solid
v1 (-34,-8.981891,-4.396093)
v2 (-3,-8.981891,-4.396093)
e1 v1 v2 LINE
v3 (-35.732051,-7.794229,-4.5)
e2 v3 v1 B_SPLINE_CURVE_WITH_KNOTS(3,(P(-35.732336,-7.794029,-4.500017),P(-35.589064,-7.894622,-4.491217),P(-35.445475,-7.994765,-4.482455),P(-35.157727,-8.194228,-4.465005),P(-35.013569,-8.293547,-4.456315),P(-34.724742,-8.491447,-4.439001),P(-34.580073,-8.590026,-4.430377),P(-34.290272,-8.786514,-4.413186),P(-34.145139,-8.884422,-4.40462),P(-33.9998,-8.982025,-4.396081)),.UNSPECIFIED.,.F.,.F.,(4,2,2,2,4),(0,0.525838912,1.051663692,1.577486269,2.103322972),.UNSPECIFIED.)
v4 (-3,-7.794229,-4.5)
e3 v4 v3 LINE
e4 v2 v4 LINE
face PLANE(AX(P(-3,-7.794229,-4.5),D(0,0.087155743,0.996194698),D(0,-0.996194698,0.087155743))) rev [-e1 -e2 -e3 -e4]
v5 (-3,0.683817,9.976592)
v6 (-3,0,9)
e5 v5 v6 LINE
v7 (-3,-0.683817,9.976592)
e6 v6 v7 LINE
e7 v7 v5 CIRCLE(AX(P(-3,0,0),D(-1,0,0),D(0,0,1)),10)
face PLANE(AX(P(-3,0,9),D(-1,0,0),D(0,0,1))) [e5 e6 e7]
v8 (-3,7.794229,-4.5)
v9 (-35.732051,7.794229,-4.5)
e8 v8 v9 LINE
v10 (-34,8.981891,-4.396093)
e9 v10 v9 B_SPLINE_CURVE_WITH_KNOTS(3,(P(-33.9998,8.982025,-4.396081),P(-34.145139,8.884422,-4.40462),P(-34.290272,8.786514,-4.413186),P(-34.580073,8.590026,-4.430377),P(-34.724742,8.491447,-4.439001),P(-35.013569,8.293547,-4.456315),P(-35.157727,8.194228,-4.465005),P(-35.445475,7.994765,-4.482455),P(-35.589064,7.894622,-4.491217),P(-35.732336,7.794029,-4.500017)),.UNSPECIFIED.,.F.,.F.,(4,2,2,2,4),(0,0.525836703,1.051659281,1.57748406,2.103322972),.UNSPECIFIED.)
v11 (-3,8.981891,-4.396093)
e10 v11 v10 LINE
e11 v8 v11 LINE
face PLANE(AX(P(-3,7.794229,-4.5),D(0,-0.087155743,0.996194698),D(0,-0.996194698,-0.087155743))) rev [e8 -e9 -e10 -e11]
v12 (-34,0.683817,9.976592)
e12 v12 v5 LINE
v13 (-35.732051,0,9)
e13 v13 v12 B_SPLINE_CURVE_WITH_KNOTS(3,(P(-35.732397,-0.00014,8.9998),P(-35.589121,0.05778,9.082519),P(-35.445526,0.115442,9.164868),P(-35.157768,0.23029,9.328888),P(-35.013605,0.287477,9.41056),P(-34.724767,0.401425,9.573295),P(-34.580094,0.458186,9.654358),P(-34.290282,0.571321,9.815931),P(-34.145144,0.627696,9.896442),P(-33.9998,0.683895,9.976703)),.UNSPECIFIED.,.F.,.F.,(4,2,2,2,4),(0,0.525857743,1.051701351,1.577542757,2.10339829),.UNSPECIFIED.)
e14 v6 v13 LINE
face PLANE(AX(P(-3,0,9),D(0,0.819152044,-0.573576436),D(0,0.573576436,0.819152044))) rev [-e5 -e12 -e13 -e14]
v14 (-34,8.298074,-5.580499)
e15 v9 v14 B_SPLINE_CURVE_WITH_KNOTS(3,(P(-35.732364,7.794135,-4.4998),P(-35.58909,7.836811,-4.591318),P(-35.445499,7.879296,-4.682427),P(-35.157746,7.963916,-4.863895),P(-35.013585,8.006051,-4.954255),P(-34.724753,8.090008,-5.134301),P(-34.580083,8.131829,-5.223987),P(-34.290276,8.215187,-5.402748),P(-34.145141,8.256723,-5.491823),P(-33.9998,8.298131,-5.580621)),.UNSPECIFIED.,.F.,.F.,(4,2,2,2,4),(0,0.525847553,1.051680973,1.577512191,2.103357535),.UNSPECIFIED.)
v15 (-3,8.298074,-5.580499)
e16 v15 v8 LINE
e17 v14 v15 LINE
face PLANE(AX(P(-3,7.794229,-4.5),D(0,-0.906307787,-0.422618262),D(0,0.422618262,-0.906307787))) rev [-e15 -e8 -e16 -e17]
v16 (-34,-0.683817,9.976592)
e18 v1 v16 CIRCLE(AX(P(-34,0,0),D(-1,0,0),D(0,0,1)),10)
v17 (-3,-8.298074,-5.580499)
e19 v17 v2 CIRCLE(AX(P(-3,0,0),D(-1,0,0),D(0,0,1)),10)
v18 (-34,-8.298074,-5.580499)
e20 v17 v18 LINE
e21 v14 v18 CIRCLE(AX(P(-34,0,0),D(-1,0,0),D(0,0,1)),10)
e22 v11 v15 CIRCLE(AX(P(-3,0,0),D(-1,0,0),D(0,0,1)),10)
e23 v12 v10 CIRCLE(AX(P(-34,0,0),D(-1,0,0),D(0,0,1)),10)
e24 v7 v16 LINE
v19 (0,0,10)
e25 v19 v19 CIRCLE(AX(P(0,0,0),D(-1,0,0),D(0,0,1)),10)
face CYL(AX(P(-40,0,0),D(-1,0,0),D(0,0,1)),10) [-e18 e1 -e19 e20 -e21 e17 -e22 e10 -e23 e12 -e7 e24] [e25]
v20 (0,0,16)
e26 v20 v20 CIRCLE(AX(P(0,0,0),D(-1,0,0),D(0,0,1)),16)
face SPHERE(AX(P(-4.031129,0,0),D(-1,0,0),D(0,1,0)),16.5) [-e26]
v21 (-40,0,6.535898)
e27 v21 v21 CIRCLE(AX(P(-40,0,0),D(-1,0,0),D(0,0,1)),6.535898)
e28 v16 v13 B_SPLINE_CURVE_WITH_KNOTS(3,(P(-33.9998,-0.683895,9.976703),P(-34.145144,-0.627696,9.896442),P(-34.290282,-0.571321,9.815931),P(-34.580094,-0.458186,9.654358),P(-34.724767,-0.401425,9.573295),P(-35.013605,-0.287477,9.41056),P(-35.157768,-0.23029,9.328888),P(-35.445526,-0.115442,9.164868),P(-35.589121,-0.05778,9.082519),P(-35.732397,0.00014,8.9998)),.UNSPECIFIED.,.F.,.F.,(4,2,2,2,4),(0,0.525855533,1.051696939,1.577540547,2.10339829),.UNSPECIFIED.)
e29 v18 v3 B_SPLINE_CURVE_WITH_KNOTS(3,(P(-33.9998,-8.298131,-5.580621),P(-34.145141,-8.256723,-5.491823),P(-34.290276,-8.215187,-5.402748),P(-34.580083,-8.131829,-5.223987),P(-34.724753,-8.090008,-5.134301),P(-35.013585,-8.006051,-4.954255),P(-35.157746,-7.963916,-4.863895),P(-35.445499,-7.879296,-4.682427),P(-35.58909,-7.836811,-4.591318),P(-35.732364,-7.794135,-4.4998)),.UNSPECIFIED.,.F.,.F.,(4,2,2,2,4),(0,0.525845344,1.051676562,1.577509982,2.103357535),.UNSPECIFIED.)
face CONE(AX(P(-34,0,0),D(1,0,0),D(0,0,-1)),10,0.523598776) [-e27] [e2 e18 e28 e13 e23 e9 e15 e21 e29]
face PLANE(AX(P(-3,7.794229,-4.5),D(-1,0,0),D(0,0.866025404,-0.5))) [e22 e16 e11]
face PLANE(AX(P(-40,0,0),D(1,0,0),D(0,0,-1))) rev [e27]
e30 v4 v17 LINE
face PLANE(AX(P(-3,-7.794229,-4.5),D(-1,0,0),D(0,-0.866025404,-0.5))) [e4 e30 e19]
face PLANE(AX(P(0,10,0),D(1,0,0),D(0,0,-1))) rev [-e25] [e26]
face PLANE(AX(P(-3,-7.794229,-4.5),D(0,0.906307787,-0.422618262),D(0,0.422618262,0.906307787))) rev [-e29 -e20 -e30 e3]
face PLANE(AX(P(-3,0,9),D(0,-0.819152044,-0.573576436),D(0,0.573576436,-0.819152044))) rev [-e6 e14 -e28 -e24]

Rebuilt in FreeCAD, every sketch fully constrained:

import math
import FreeCAD as App
import Part
import Sketcher
Q = App.Units.Quantity

doc = App.newDocument("Part")
body = doc.addObject("PartDesign::Body", "Body")

# Sketch on XY plane
sketch1 = body.newObject("Sketcher::SketchObject", "Sketch")
sketch1.AttachmentSupport = (doc.getObject("XY_Plane"), [""])
sketch1.MapMode = "FlatFace"
sketch1.addGeometry([
    Part.LineSegment(App.Vector(-40, 6.535898, 0), App.Vector(-40, 0, 0)),  # 0
    Part.LineSegment(App.Vector(-40, 0, 0), App.Vector(12.468871, 0, 0)),  # 1
    Part.ArcOfCircle(Part.Circle(App.Vector(-4.031129, 0, 0), App.Vector(0, 0, 1), 16.5), math.radians(0), math.radians(75.85889)),  # 2
    Part.LineSegment(App.Vector(0, 16, 0), App.Vector(0, 10, 0)),  # 3
    Part.LineSegment(App.Vector(0, 10, 0), App.Vector(-34, 10, 0)),  # 4
    Part.LineSegment(App.Vector(-34, 10, 0), App.Vector(-40, 6.535898, 0)),  # 5
], False)
sketch1.addConstraint([
    Sketcher.Constraint("Coincident", 0, 2, 1, 1),
    Sketcher.Constraint("Coincident", 1, 2, 2, 1),
    Sketcher.Constraint("Coincident", 2, 2, 3, 1),
    Sketcher.Constraint("Coincident", 3, 2, 4, 1),
    Sketcher.Constraint("Coincident", 4, 2, 5, 1),
    Sketcher.Constraint("Coincident", 5, 2, 0, 1),
    Sketcher.Constraint("Vertical", 0),
    Sketcher.Constraint("Horizontal", 1),
    Sketcher.Constraint("Vertical", 3),
    Sketcher.Constraint("Horizontal", 4),
    Sketcher.Constraint("PointOnObject", 2, 3, -1),
    Sketcher.Constraint("PointOnObject", 0, 2, -1),
    Sketcher.Constraint("PointOnObject", 2, 2, -2),
    Sketcher.Constraint("Radius", 2, 16.5),
    Sketcher.Constraint("DistanceX", 4, 2, 4, 1, 34.0),
    Sketcher.Constraint("DistanceY", 3, 2, 3, 1, 6.0),
    Sketcher.Constraint("Angle", 5, Q("-150 deg")),
    Sketcher.Constraint("DistanceX", 0, 2, -1, 1, 40.0),
    Sketcher.Constraint("DistanceY", -1, 1, 2, 2, 16.0),
])
revolution = body.newObject("PartDesign::Revolution", "Revolution")
revolution.Profile = sketch1
revolution.ReferenceAxis = (sketch1, ["H_Axis"])
revolution.Angle = 360

# Sketch on YZ plane
sketch2 = body.newObject("Sketcher::SketchObject", "Sketch001")
sketch2.AttachmentSupport = (doc.getObject("YZ_Plane"), [""])
sketch2.MapMode = "FlatFace"
sketch2.AttachmentOffset = App.Placement(App.Vector(0, 0, -40), App.Rotation())
sketch2.addGeometry([
    Part.LineSegment(App.Vector(0.700208, 10, 0), App.Vector(0, 9, 0)),
    Part.LineSegment(App.Vector(0, 9, 0), App.Vector(-0.700208, 10, 0)),
    Part.LineSegment(App.Vector(-0.700208, 10, 0), App.Vector(0.700208, 10, 0)),
], False)
sketch2.addConstraint([
    Sketcher.Constraint("Coincident", 0, 2, 1, 1),
    Sketcher.Constraint("Coincident", 1, 2, 2, 1),
    Sketcher.Constraint("Coincident", 2, 2, 0, 1),
    Sketcher.Constraint("Horizontal", 2),
    Sketcher.Constraint("PointOnObject", 0, 2, -2),
    Sketcher.Constraint("Equal", 0, 1),
    Sketcher.Constraint("Angle", 0, Q("-125 deg")),
    Sketcher.Constraint("DistanceY", -1, 1, 0, 2, 9.0),
    Sketcher.Constraint("DistanceY", -1, 1, 1, 2, 10.0),
])
pocket1 = body.newObject("PartDesign::Pocket", "Pocket")
pocket1.Profile = sketch2
pocket1.Length = 37
pocket1.Reversed = True
doc.recompute()

polarpattern = body.newObject("PartDesign::PolarPattern", "PolarPattern")
polarpattern.Originals = [pocket1]
polarpattern.Axis = (doc.getObject("X_Axis"), [""])
polarpattern.Angle = 360
polarpattern.Occurrences = 3
body.Tip = polarpattern

doc.recompute()
